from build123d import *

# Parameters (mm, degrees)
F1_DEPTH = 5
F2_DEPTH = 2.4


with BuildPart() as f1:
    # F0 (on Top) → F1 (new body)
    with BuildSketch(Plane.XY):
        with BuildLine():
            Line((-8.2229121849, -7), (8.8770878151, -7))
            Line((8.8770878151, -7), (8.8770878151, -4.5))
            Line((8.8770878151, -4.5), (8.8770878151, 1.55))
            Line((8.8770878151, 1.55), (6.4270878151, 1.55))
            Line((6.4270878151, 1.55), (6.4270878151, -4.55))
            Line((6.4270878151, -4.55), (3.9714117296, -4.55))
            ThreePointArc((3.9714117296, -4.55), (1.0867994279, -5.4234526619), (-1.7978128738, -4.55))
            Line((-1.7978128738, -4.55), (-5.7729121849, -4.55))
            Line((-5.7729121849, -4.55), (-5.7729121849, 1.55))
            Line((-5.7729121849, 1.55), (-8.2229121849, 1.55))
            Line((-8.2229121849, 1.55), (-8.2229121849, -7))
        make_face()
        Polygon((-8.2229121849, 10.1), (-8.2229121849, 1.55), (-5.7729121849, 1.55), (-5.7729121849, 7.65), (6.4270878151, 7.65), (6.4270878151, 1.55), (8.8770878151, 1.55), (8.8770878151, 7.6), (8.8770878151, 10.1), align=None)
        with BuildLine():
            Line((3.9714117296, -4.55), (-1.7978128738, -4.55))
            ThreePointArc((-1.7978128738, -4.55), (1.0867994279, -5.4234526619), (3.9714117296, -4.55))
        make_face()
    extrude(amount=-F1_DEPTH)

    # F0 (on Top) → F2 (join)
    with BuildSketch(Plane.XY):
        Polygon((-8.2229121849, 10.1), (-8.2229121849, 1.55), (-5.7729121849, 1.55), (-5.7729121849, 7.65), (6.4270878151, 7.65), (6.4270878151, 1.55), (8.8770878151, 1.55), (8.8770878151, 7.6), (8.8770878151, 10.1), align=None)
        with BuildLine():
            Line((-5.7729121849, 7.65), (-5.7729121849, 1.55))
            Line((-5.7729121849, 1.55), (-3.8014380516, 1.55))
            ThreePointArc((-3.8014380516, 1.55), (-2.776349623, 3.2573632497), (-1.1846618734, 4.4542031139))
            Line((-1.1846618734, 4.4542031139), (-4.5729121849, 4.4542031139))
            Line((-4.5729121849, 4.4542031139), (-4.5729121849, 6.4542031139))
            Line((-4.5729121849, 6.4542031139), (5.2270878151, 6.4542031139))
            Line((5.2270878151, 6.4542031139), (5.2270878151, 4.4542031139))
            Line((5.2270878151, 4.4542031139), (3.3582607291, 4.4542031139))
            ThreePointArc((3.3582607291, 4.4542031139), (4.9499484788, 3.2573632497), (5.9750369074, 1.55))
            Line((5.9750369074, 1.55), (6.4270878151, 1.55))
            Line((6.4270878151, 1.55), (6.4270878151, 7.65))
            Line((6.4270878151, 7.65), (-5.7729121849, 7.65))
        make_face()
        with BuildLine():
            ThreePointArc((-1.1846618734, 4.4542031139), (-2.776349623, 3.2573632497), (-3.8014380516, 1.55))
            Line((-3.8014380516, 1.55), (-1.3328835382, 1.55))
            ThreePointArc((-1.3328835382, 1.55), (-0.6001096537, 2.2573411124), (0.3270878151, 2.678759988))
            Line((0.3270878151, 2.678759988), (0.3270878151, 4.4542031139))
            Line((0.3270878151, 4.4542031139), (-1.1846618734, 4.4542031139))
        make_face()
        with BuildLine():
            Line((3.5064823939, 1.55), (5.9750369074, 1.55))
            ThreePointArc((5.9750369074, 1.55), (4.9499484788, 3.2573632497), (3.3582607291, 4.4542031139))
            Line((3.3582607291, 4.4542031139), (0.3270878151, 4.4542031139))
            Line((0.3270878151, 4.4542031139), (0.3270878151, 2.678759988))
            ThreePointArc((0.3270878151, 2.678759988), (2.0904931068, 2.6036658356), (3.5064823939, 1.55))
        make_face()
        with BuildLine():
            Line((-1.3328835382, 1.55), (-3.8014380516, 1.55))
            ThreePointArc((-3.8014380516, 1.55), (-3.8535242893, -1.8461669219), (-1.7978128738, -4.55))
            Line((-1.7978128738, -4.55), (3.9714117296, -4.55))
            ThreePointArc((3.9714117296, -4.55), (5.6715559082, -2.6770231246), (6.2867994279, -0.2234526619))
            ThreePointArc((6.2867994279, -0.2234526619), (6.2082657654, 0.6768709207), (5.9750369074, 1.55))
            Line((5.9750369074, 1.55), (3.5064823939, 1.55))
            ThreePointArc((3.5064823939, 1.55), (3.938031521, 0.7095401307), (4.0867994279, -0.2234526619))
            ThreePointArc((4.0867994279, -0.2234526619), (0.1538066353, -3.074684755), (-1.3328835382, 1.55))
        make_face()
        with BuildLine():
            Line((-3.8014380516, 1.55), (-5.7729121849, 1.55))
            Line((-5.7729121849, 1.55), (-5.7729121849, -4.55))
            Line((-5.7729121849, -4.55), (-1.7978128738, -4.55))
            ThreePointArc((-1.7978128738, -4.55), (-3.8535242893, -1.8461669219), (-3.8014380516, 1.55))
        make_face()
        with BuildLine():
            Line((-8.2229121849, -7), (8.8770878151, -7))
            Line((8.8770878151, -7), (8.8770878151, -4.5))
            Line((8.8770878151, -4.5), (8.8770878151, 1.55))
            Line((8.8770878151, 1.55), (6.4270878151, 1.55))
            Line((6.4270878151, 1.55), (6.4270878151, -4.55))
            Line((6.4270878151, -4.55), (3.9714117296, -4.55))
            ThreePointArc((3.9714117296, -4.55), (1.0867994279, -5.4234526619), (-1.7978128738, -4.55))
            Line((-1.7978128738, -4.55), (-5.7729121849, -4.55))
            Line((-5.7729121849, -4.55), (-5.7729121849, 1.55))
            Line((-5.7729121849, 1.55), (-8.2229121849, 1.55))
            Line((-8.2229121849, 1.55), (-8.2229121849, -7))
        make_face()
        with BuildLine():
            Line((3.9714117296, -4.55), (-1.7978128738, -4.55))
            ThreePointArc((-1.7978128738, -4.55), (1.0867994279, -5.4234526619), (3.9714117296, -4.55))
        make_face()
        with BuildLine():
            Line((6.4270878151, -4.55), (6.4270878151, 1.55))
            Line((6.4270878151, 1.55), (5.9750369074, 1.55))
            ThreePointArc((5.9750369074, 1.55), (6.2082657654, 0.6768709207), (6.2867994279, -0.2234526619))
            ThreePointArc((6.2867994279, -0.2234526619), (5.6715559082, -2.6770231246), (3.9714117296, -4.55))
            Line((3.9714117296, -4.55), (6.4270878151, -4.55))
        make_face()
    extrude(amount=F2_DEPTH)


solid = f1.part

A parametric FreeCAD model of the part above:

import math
import FreeCAD as App
import Part
import Sketcher
Q = App.Units.Quantity

doc = App.newDocument("Part")
body = doc.addObject("PartDesign::Body", "Body")

# Sketch on XY plane
sketch1 = body.newObject("Sketcher::SketchObject", "Sketch")
sketch1.AttachmentSupport = (doc.getObject("XY_Plane"), [""])
sketch1.MapMode = "FlatFace"
sketch1.addGeometry([
    Part.LineSegment(App.Vector(-8, -7, 0), App.Vector(9, -7, 0)),  # 0
    Part.LineSegment(App.Vector(9, -7, 0), App.Vector(9, 10, 0)),  # 1
    Part.LineSegment(App.Vector(9, 10, 0), App.Vector(-8, 10, 0)),  # 2
    Part.LineSegment(App.Vector(-8, 10, 0), App.Vector(-8, -7, 0)),  # 3
    Part.LineSegment(App.Vector(6, -5, 0), App.Vector(-6, -5, 0)),  # 4
    Part.LineSegment(App.Vector(-6, -5, 0), App.Vector(-6, 8, 0)),  # 5
    Part.LineSegment(App.Vector(-6, 8, 0), App.Vector(6, 8, 0)),  # 6
    Part.LineSegment(App.Vector(6, 8, 0), App.Vector(6, -5, 0)),  # 7
], False)
sketch1.addConstraint([
    Sketcher.Constraint("Coincident", 0, 2, 1, 1),
    Sketcher.Constraint("Coincident", 1, 2, 2, 1),
    Sketcher.Constraint("Coincident", 2, 2, 3, 1),
    Sketcher.Constraint("Coincident", 3, 2, 0, 1),
    Sketcher.Constraint("Coincident", 4, 2, 5, 1),
    Sketcher.Constraint("Coincident", 5, 2, 6, 1),
    Sketcher.Constraint("Coincident", 6, 2, 7, 1),
    Sketcher.Constraint("Coincident", 7, 2, 4, 1),
    Sketcher.Constraint("Horizontal", 0),
    Sketcher.Constraint("Vertical", 1),
    Sketcher.Constraint("Horizontal", 2),
    Sketcher.Constraint("Vertical", 3),
    Sketcher.Constraint("Horizontal", 4),
    Sketcher.Constraint("Vertical", 5),
    Sketcher.Constraint("Horizontal", 6),
    Sketcher.Constraint("Vertical", 7),
    Sketcher.Constraint("Equal", 2, 1),
    Sketcher.Constraint("Equal", 6, 5),
    Sketcher.Constraint("DistanceX", 0, 1, 0, 2, Q("17.1 mm")),
    Sketcher.Constraint("DistanceX", 4, 2, 4, 1, Q("12.2 mm")),
    Sketcher.Constraint("DistanceY", 0, 2, -1, 1, Q("7 mm")),
    Sketcher.Constraint("DistanceY", 4, 2, -1, 1, Q("4.55 mm")),
    Sketcher.Constraint("DistanceX", 3, 2, 4, 2, Q("2.45 mm")),
    Sketcher.Constraint("DistanceX", -1, 1, 0, 2, Q("8.877088 mm")),
])
pad1 = body.newObject("PartDesign::Pad", "Pad")
pad1.Profile = sketch1
pad1.Length = 5
pad1.Reversed = True

# Sketch on XY plane
sketch2 = body.newObject("Sketcher::SketchObject", "Sketch001")
sketch2.AttachmentSupport = (doc.getObject("XY_Plane"), [""])
sketch2.MapMode = "FlatFace"
sketch2.addGeometry([
    Part.LineSegment(App.Vector(-8.2, 10.1, 0), App.Vector(-8.2, -7, 0)),  # 0
    Part.LineSegment(App.Vector(-8.2, -7, 0), App.Vector(8.9, -7, 0)),  # 1
    Part.LineSegment(App.Vector(8.9, -7, 0), App.Vector(8.9, 10.1, 0)),  # 2
    Part.LineSegment(App.Vector(8.9, 10.1, 0), App.Vector(-8.2, 10.1, 0)),  # 3
    Part.ArcOfCircle(Part.Circle(App.Vector(1.1, -0.2, 0), App.Vector(0, 0, 1), 3), math.radians(105), math.radians(144)),  # 4
    Part.ArcOfCircle(Part.Circle(App.Vector(1.1, -0.2, 0), App.Vector(0, 0, 1), 3), math.radians(36), math.radians(105)),  # 5
    Part.ArcOfCircle(Part.Circle(App.Vector(1.1, -0.2, 0), App.Vector(0, 0, 1), 3), math.radians(0), math.radians(36)),  # 6
    Part.ArcOfCircle(Part.Circle(App.Vector(1.1, -0.2, 0), App.Vector(0, 0, 1), 3), math.radians(144), math.radians(360)),  # 7
    Part.LineSegment(App.Vector(-4.6, 4.5, 0), App.Vector(-4.6, 6.5, 0)),  # 8
    Part.LineSegment(App.Vector(-4.6, 6.5, 0), App.Vector(5.2, 6.5, 0)),  # 9
    Part.LineSegment(App.Vector(5.2, 6.5, 0), App.Vector(5.2, 4.5, 0)),  # 10
    Part.LineSegment(App.Vector(5.2, 4.5, 0), App.Vector(-4.6, 4.5, 0)),  # 11
], False)
sketch2.addConstraint([
    Sketcher.Constraint("Coincident", 0, 2, 1, 1),
    Sketcher.Constraint("Coincident", 1, 2, 2, 1),
    Sketcher.Constraint("Coincident", 2, 2, 3, 1),
    Sketcher.Constraint("Coincident", 3, 2, 0, 1),
    Sketcher.Constraint("Tangent", 4, 1, 5, 2),
    Sketcher.Constraint("Tangent", 5, 1, 6, 2),
    Sketcher.Constraint("Tangent", 6, 1, 7, 2),
    Sketcher.Constraint("Tangent", 7, 1, 4, 2),
    Sketcher.Constraint("Coincident", 8, 2, 9, 1),
    Sketcher.Constraint("Coincident", 9, 2, 10, 1),
    Sketcher.Constraint("Coincident", 10, 2, 11, 1),
    Sketcher.Constraint("Coincident", 11, 2, 8, 1),
    Sketcher.Constraint("Vertical", 0),
    Sketcher.Constraint("Horizontal", 1),
    Sketcher.Constraint("Vertical", 2),
    Sketcher.Constraint("Horizontal", 3),
    Sketcher.Constraint("Vertical", 8),
    Sketcher.Constraint("Horizontal", 9),
    Sketcher.Constraint("Vertical", 10),
    Sketcher.Constraint("Horizontal", 11),
    Sketcher.Constraint("Equal", 4, 5),
    Sketcher.Constraint("Horizontal", 7, 3, 6, 1),
    Sketcher.Constraint("Horizontal", 5, 1, 7, 1),
    Sketcher.Constraint("Equal", 3, 0),
    Sketcher.Constraint("Radius", 4, Q("3 mm")),
    Sketcher.Constraint("DistanceY", 8, 1, 8, 2, Q("2 mm")),
    Sketcher.Constraint("DistanceX", 1, 1, 1, 2, Q("17.1 mm")),
    Sketcher.Constraint("DistanceX", 9, 1, 9, 2, Q("9.8 mm")),
    Sketcher.Constraint("DistanceY", 0, 2, -1, 1, Q("7 mm")),
    Sketcher.Constraint("DistanceX", 8, 2, 4, 1, Q("4.9 mm")),
    Sketcher.Constraint("DistanceY", -1, 1, 5, 1, Q("1.55 mm")),
    Sketcher.Constraint("DistanceX", 4, 1, 2, 2, Q("8.55 mm")),
    Sketcher.Constraint("DistanceX", -1, 1, 4, 3, Q("1.086799 mm")),
    Sketcher.Constraint("DistanceY", -1, 1, 4, 1, Q("2.67876 mm")),
    Sketcher.Constraint("DistanceX", 0, 2, 6, 3, Q("9.309712 mm")),
    Sketcher.Constraint("DistanceY", -1, 1, 8, 2, Q("6.454203 mm")),
])
pad2 = body.newObject("PartDesign::Pad", "Pad001")
pad2.Profile = sketch2
pad2.Length = 2.4

doc.recompute()
